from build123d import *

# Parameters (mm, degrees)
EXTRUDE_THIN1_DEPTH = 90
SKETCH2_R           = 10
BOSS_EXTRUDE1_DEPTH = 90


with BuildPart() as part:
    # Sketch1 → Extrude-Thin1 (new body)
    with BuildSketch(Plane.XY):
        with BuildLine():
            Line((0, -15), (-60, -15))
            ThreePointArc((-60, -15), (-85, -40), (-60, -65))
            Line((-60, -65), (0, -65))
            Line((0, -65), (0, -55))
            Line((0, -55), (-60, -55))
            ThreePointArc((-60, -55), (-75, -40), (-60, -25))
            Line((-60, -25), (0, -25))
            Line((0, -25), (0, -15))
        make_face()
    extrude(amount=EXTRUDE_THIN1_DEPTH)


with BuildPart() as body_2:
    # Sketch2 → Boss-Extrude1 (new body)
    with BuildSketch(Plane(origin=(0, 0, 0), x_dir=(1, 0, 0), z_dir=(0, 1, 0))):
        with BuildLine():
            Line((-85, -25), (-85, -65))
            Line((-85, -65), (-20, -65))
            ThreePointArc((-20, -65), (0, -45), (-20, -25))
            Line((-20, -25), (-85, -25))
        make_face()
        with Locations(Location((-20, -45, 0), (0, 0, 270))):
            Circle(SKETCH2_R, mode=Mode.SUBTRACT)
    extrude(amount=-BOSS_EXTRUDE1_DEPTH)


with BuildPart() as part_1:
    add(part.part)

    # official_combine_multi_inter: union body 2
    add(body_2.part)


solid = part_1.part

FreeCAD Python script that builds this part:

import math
import FreeCAD as App
import Part
import Sketcher

V = App.Vector

doc = App.newDocument("Part")
body = doc.addObject("PartDesign::Body", "Body")

# Sketch on XY plane
sketch1 = body.newObject("Sketcher::SketchObject", "Sketch")
sketch1.AttachmentSupport = (doc.getObject("XY_Plane"), [""])
sketch1.MapMode = "FlatFace"
sketch1.addGeometry([
    Part.LineSegment(V(0, -15, 0), V(-60, -15, 0)),  # 0
    Part.ArcOfCircle(Part.Circle(V(-60, -40, 0), V(0, 0, 1), 25), math.radians(90), math.radians(270)),  # 1
    Part.LineSegment(V(-60, -65, 0), V(0, -65, 0)),  # 2
    Part.LineSegment(V(0, -65, 0), V(0, -55, 0)),  # 3
    Part.LineSegment(V(0, -55, 0), V(-60, -55, 0)),  # 4
    Part.ArcOfCircle(Part.Circle(V(-60, -40, 0), V(0, 0, 1), 15), math.radians(90), math.radians(270)),  # 5
    Part.LineSegment(V(-60, -25, 0), V(0, -25, 0)),  # 6
    Part.LineSegment(V(0, -25, 0), V(0, -15, 0)),  # 7
], False)
sketch1.addConstraint([
    Sketcher.Constraint("Tangent", 0, 2, 1, 1),
    Sketcher.Constraint("Tangent", 1, 2, 2, 1),
    Sketcher.Constraint("Coincident", 2, 2, 3, 1),
    Sketcher.Constraint("Coincident", 3, 2, 4, 1),
    Sketcher.Constraint("Tangent", 4, 2, 5, 2),
    Sketcher.Constraint("Tangent", 5, 1, 6, 1),
    Sketcher.Constraint("Coincident", 6, 2, 7, 1),
    Sketcher.Constraint("Coincident", 7, 2, 0, 1),
    Sketcher.Constraint("Horizontal", 0),
    Sketcher.Constraint("Horizontal", 2),
    Sketcher.Constraint("Vertical", 3),
    Sketcher.Constraint("Horizontal", 4),
    Sketcher.Constraint("Horizontal", 6),
    Sketcher.Constraint("Vertical", 7),
    Sketcher.Constraint("Coincident", 5, 3, 1, 3),
    Sketcher.Constraint("PointOnObject", 2, 2, -2),
    Sketcher.Constraint("PointOnObject", 6, 2, -2),
    Sketcher.Constraint("Radius", 1, 25.0),
    Sketcher.Constraint("Radius", 5, 15.0),
    Sketcher.Constraint("DistanceX", 0, 2, 0, 1, 60.0),
    Sketcher.Constraint("DistanceY", 1, 3, -1, 1, 40.0),
])
pad1 = body.newObject("PartDesign::Pad", "Pad")
pad1.Profile = sketch1
pad1.Length = 90
body2 = doc.addObject("PartDesign::Body", "Body001")

# Sketch on XZ plane
sketch2 = body2.newObject("Sketcher::SketchObject", "Sketch001")
sketch2.AttachmentSupport = (doc.getObject("XZ_Plane001"), [""])
sketch2.MapMode = "FlatFace"
sketch2.addGeometry([
    Part.LineSegment(V(-85, 25, 0), V(-85, 65, 0)),  # 0
    Part.LineSegment(V(-85, 65, 0), V(-20, 65, 0)),  # 1
    Part.ArcOfCircle(Part.Circle(V(-20, 45, 0), V(0, 0, 1), 20), math.radians(-90), math.radians(90)),  # 2
    Part.LineSegment(V(-20, 25, 0), V(-85, 25, 0)),  # 3
    Part.Circle(V(-20, 45, 0), V(0, 0, 1), 10),  # 4
], False)
sketch2.addConstraint([
    Sketcher.Constraint("Coincident", 0, 2, 1, 1),
    Sketcher.Constraint("Tangent", 1, 2, 2, 2),
    Sketcher.Constraint("Tangent", 2, 1, 3, 1),
    Sketcher.Constraint("Coincident", 3, 2, 0, 1),
    Sketcher.Constraint("Vertical", 0),
    Sketcher.Constraint("Horizontal", 1),
    Sketcher.Constraint("Horizontal", 3),
    Sketcher.Constraint("Coincident", 4, 3, 2, 3),
    Sketcher.Constraint("Diameter", 4, 20.0),
    Sketcher.Constraint("Radius", 2, 20.0),
    Sketcher.Constraint("DistanceX", 1, 1, 1, 2, 65.0),
    Sketcher.Constraint("DistanceX", 2, 3, -1, 1, 20.0),
    Sketcher.Constraint("DistanceY", -1, 1, 2, 3, 45.0),
])
pad2 = body2.newObject("PartDesign::Pad", "Pad001")
pad2.Profile = sketch2
pad2.Length = 90
doc.recompute()

boolean = body.newObject("PartDesign::Boolean", "Boolean")
boolean.Type = "Fuse"
boolean.addObjects([body2])

doc.recompute()
